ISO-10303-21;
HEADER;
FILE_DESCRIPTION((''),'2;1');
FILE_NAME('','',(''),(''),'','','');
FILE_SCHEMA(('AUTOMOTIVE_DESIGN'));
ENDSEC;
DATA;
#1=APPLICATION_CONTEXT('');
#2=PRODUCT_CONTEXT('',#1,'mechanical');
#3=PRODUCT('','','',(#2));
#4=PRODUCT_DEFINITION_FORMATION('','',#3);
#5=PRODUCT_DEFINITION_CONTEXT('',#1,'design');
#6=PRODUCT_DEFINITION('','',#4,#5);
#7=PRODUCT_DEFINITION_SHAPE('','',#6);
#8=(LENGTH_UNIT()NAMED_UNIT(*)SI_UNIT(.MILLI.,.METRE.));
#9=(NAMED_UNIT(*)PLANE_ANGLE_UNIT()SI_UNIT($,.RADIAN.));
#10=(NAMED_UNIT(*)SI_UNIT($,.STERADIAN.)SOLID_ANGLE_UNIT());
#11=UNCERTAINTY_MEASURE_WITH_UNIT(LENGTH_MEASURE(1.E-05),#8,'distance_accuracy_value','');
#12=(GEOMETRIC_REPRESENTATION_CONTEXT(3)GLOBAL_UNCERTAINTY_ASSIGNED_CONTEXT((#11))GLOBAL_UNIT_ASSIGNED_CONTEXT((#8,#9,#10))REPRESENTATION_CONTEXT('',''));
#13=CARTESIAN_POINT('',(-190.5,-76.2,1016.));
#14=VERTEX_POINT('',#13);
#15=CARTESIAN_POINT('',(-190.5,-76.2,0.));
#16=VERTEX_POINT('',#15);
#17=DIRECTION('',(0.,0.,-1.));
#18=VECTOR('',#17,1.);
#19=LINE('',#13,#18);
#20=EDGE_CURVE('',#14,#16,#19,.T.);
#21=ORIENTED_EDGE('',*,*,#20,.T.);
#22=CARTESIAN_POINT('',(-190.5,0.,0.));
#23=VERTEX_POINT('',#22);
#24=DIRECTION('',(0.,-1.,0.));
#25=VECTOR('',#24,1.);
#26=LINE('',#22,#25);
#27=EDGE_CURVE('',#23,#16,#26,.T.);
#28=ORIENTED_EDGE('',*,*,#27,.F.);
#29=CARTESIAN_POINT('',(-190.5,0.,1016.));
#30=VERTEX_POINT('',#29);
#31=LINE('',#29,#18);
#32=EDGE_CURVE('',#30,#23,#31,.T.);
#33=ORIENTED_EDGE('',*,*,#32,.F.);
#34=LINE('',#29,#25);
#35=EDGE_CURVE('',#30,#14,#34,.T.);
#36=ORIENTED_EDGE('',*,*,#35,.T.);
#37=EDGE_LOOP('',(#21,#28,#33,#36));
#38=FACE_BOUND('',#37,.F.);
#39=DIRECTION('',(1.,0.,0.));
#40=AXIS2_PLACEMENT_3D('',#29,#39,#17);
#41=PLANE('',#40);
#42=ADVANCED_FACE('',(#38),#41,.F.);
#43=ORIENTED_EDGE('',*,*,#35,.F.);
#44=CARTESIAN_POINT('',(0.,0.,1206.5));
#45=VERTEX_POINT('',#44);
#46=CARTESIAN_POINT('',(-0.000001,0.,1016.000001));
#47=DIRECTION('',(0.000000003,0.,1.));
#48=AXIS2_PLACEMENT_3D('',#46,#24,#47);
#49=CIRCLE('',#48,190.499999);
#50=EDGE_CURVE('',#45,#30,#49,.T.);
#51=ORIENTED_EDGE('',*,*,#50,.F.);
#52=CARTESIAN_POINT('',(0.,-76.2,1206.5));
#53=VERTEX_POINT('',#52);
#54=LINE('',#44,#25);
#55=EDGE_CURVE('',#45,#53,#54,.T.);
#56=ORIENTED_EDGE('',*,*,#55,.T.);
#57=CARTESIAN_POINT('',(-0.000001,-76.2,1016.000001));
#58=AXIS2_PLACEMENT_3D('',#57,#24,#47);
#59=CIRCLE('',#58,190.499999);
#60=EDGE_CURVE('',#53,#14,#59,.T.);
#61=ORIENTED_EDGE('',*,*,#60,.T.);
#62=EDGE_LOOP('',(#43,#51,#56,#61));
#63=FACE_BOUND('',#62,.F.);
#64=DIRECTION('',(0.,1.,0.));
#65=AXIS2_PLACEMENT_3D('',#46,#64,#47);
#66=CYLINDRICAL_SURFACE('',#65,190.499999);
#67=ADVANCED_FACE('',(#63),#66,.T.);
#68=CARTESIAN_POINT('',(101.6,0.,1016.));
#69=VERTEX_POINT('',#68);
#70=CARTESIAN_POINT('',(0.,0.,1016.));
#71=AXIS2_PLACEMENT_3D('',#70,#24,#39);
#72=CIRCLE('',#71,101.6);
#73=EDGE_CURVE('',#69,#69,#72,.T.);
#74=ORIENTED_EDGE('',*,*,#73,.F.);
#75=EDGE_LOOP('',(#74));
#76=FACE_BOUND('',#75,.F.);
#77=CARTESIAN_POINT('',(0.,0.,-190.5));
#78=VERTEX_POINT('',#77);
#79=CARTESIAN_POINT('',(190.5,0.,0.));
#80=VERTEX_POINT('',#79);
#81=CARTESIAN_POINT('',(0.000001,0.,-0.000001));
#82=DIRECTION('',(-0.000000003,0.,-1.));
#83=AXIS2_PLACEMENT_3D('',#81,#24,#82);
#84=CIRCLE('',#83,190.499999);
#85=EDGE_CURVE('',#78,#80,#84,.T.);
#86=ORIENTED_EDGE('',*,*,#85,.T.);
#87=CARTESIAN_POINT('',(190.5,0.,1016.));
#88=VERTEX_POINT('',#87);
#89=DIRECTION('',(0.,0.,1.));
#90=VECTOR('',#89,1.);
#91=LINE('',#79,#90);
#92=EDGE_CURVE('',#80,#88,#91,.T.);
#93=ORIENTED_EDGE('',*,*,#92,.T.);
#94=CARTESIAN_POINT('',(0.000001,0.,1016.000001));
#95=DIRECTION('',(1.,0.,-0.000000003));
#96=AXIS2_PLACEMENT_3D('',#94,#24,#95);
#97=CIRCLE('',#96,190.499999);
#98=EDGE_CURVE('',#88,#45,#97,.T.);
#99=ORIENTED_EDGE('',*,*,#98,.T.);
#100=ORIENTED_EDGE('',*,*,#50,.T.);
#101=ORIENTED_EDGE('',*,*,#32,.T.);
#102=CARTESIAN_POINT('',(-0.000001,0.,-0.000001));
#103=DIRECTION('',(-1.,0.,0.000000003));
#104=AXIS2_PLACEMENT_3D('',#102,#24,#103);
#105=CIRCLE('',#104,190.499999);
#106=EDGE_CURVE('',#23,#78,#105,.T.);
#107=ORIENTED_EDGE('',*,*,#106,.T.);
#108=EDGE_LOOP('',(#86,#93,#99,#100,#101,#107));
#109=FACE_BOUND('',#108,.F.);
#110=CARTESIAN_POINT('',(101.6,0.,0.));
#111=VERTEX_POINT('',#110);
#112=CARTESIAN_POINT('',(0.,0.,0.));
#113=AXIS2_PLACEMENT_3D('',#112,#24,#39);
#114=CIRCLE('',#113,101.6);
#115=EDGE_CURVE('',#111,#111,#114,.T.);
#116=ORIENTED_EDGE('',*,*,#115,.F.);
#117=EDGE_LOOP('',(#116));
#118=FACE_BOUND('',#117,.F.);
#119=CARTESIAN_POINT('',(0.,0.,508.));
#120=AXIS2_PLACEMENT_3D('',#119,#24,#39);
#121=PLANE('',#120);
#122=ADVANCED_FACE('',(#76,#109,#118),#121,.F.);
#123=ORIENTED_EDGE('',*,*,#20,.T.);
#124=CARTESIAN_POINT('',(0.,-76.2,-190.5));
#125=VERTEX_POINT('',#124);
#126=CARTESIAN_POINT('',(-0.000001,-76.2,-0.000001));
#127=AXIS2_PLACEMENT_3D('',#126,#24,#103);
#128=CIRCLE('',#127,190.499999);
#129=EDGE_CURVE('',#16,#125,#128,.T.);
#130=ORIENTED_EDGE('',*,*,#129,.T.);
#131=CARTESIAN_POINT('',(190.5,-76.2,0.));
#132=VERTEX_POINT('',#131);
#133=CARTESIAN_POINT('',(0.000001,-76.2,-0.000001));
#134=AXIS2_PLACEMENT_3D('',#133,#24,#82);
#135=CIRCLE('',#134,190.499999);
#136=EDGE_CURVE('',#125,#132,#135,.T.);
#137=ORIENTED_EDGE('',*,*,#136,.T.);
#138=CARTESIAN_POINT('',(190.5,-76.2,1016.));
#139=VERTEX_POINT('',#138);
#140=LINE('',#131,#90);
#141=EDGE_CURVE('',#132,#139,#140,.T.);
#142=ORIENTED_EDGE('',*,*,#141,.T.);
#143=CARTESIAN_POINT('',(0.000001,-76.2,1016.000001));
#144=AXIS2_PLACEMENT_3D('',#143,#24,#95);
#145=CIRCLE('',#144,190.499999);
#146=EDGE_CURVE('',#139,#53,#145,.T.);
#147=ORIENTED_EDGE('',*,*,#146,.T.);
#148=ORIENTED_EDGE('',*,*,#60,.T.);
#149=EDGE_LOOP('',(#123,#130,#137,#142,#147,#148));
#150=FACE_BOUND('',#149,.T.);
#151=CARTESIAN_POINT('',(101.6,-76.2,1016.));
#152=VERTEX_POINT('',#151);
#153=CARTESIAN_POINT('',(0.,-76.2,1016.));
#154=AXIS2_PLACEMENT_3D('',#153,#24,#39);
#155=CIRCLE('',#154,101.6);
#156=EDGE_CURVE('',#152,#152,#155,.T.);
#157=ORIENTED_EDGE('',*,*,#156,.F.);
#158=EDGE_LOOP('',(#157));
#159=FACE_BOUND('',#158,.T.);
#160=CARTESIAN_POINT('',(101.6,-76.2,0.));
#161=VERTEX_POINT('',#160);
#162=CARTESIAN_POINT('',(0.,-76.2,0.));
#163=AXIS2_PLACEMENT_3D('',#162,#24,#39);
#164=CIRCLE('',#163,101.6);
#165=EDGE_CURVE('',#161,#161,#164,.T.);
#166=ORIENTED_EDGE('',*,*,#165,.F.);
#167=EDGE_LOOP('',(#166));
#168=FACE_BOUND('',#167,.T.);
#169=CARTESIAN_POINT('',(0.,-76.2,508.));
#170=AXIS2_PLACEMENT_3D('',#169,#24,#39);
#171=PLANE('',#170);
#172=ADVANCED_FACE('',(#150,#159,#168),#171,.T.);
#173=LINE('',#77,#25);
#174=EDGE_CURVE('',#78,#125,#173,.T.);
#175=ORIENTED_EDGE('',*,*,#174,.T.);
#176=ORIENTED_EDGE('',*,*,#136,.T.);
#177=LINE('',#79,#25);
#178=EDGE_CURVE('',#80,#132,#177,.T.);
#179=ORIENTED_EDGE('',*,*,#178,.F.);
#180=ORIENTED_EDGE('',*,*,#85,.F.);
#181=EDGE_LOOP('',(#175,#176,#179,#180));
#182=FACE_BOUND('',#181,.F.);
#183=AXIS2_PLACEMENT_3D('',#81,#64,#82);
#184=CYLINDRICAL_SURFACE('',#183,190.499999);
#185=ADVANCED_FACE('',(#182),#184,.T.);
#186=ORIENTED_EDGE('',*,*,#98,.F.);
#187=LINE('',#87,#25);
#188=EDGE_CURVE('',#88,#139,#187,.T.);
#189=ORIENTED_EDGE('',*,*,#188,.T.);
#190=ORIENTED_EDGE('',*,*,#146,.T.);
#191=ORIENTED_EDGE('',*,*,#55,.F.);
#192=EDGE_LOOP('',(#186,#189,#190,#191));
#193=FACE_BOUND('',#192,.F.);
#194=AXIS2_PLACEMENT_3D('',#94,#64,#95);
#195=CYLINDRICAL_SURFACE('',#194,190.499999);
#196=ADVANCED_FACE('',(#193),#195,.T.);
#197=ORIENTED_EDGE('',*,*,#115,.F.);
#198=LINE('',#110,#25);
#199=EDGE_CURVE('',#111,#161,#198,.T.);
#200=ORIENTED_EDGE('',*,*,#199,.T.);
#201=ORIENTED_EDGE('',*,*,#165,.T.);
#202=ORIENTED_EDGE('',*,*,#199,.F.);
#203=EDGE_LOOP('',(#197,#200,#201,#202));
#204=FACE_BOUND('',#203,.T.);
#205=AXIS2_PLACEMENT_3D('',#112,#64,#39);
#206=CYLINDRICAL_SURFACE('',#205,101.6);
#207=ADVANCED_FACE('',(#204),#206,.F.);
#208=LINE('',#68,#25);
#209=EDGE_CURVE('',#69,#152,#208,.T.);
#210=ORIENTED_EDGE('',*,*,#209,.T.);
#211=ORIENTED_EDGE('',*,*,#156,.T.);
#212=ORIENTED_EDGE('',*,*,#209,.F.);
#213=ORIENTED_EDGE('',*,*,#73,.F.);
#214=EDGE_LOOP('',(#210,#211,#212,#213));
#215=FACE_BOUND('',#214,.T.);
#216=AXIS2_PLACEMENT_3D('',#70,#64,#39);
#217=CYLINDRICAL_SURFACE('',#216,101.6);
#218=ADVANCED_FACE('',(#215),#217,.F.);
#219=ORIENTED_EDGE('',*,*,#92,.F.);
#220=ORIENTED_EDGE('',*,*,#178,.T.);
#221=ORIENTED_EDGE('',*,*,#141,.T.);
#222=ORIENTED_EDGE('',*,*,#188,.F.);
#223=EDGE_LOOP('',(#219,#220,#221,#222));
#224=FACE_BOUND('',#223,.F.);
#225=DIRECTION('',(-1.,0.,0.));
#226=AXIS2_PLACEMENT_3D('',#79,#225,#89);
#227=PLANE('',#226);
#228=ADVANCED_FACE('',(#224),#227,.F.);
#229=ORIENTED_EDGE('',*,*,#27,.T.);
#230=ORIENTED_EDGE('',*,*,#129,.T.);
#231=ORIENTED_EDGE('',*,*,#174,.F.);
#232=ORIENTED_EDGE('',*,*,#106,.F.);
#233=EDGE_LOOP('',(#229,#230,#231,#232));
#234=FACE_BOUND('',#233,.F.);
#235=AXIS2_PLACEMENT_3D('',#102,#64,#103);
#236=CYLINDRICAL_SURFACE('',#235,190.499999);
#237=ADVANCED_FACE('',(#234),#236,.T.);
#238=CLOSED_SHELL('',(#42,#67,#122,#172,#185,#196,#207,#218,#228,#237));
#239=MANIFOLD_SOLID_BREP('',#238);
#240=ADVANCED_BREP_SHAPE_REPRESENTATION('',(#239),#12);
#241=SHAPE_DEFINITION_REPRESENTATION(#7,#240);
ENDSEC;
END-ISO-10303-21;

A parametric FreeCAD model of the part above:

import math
import FreeCAD as App
import Part
import Sketcher
Q = App.Units.Quantity

doc = App.newDocument("Part")
body = doc.addObject("PartDesign::Body", "Body")

# Sketch on XZ plane
sketch1 = doc.addObject("Sketcher::SketchObject", "Sketch")
body.addObject(sketch1)
sketch1.AttachmentSupport = (doc.XZ_Plane, [""])
sketch1.MapMode = "FlatFace"
sketch1.addGeometry(Part.LineSegment(App.Vector(-190, 1016, 0), App.Vector(-190, 0, 0)), False)
sketch1.addGeometry(Part.ArcOfCircle(Part.Circle(App.Vector(0, 0, 0), App.Vector(0, 0, 1), 190), math.radians(180), math.radians(270)), False)
sketch1.addGeometry(Part.ArcOfCircle(Part.Circle(App.Vector(0, 0, 0), App.Vector(0, 0, 1), 190), math.radians(-90), math.radians(0)), False)
sketch1.addGeometry(Part.LineSegment(App.Vector(190, 0, 0), App.Vector(190, 1016, 0)), False)
sketch1.addGeometry(Part.ArcOfCircle(Part.Circle(App.Vector(0, 1016, 0), App.Vector(0, 0, 1), 190), math.radians(0), math.radians(90)), False)
sketch1.addGeometry(Part.ArcOfCircle(Part.Circle(App.Vector(0, 1016, 0), App.Vector(0, 0, 1), 190), math.radians(90), math.radians(180)), False)
sketch1.addGeometry(Part.Circle(App.Vector(0, 0, 0), App.Vector(0, 0, 1), 102), False)
sketch1.addGeometry(Part.Circle(App.Vector(0, 1016, 0), App.Vector(0, 0, 1), 102), False)
sketch1.addConstraint(Sketcher.Constraint("Tangent", 0, 2, 1, 1))
sketch1.addConstraint(Sketcher.Constraint("Tangent", 1, 2, 2, 1))
sketch1.addConstraint(Sketcher.Constraint("Tangent", 2, 2, 3, 1))
sketch1.addConstraint(Sketcher.Constraint("Tangent", 3, 2, 4, 1))
sketch1.addConstraint(Sketcher.Constraint("Tangent", 4, 2, 5, 1))
sketch1.addConstraint(Sketcher.Constraint("Tangent", 5, 2, 0, 1))
sketch1.addConstraint(Sketcher.Constraint("Vertical", 0))
sketch1.addConstraint(Sketcher.Constraint("Vertical", 3))
sketch1.addConstraint(Sketcher.Constraint("Coincident", 1, 3, -1, 1))
sketch1.addConstraint(Sketcher.Constraint("Coincident", 6, 3, -1, 1))
sketch1.addConstraint(Sketcher.Constraint("Coincident", 7, 3, 4, 3))
sketch1.addConstraint(Sketcher.Constraint("Equal", 1, 2))
sketch1.addConstraint(Sketcher.Constraint("Equal", 2, 4))
sketch1.addConstraint(Sketcher.Constraint("Equal", 6, 7))
sketch1.addConstraint(Sketcher.Constraint("PointOnObject", 1, 2, -2))
sketch1.addConstraint(Sketcher.Constraint("PointOnObject", 4, 2, -2))
sketch1.addConstraint(Sketcher.Constraint("Diameter", 6, Q("8 in")))
sketch1.addConstraint(Sketcher.Constraint("Radius", 1, Q("7.5 in")))
sketch1.addConstraint(Sketcher.Constraint("DistanceY", 0, 2, 0, 1, Q("40 in")))
pad1 = doc.addObject("PartDesign::Pad", "Pad")
body.addObject(pad1)
pad1.Profile = sketch1
pad1.Length = Q("3 in")

doc.recompute()
